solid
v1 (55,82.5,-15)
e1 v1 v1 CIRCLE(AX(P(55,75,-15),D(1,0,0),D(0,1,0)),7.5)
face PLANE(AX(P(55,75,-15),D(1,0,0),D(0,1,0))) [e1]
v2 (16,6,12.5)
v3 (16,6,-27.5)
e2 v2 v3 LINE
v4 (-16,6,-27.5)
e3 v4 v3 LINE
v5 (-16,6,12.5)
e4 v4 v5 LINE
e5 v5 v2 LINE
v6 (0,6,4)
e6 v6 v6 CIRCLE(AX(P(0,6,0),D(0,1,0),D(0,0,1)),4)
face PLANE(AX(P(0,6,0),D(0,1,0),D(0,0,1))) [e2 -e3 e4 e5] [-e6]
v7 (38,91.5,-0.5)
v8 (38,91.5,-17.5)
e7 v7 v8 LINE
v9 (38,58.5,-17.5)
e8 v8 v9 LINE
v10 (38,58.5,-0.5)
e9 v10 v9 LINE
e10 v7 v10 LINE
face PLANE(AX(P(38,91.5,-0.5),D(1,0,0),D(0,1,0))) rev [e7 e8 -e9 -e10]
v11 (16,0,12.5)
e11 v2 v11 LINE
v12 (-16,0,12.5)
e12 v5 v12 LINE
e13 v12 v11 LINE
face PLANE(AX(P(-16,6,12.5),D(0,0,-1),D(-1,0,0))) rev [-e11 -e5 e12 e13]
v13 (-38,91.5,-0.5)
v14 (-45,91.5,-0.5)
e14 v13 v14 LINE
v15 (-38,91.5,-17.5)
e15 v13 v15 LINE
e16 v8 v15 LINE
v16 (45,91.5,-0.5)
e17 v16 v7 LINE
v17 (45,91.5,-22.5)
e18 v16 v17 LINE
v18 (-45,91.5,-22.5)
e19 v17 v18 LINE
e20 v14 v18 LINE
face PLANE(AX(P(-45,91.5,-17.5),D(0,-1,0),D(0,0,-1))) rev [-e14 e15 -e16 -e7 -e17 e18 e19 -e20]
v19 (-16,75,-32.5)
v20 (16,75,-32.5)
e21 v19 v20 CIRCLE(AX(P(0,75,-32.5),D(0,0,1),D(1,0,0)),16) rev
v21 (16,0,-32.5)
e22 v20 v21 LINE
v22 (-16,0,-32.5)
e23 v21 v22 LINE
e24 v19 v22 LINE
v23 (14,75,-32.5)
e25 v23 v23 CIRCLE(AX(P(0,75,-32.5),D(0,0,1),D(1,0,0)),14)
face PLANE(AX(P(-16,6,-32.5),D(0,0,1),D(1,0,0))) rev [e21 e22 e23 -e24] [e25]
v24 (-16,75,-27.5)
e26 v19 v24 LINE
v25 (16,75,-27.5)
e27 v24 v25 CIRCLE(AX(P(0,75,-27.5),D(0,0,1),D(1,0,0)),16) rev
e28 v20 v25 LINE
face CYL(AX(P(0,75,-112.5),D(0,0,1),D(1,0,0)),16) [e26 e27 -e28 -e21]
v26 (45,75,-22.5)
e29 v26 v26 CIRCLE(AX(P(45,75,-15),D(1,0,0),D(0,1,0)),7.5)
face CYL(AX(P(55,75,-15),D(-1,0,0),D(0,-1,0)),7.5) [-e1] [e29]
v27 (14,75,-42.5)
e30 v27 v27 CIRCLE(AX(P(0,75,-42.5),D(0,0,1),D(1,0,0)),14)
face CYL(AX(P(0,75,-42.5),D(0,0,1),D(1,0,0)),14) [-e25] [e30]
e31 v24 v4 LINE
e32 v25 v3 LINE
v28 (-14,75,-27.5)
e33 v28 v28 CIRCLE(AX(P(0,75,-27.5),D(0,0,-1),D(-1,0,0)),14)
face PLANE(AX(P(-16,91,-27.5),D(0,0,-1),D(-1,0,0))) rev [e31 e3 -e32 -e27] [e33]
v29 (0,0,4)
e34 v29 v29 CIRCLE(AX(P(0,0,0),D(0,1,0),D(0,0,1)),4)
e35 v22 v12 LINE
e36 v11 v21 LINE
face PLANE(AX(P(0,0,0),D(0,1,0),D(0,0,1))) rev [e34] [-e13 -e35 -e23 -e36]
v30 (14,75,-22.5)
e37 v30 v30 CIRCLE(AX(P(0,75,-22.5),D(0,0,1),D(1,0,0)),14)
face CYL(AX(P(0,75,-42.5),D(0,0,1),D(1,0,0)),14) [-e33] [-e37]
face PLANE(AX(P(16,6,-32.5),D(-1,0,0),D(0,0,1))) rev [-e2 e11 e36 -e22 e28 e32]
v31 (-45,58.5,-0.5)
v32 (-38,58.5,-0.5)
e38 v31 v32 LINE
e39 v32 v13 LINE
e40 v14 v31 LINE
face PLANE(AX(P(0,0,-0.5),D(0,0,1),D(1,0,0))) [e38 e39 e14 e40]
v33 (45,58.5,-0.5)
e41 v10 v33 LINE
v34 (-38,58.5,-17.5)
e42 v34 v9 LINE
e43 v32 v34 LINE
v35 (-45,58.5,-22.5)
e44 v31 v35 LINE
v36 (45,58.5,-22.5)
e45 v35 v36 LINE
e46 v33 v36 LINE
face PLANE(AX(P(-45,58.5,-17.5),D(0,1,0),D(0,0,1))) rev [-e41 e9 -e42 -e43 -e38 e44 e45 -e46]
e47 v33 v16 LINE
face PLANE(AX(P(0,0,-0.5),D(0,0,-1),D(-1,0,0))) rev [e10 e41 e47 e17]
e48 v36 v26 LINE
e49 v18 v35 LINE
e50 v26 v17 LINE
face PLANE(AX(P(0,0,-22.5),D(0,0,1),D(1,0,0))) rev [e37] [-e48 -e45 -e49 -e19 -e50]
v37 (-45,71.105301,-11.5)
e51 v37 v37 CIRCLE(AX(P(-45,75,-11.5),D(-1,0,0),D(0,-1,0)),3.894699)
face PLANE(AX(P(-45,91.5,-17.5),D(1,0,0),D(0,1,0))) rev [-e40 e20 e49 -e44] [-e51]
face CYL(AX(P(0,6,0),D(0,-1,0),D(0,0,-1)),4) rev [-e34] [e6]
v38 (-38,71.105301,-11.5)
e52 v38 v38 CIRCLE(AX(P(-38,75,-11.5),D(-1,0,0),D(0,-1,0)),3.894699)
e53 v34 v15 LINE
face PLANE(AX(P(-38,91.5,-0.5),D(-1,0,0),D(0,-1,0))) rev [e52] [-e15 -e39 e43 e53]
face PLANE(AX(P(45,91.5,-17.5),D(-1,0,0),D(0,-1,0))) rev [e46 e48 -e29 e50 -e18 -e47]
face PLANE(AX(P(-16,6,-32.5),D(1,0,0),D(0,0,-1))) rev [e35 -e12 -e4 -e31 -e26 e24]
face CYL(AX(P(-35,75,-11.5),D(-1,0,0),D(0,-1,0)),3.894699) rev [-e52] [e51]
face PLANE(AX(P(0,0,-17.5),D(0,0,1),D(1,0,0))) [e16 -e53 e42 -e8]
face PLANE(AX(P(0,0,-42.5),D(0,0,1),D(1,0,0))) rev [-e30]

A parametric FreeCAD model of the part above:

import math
import FreeCAD as App
import Part
import Sketcher
from FreeCAD import Vector
Q = App.Units.Quantity

doc = App.newDocument("Part")
body = doc.addObject("PartDesign::Body", "Body")

sketch1 = body.newObject("Sketcher::SketchObject", "Sketch")
sketch1.AttachmentSupport = (doc.getObject("XZ_Plane"), [""])
sketch1.MapMode = "FlatFace"
sketch1.addGeometry([
    Part.LineSegment(Vector(-16, -32.5, 0), Vector(-16, 12.5, 0)),
    Part.LineSegment(Vector(-16, 12.5, 0), Vector(16, 12.5, 0)),
    Part.LineSegment(Vector(16, 12.5, 0), Vector(16, -32.5, 0)),
    Part.LineSegment(Vector(16, -32.5, 0), Vector(-16, -32.5, 0)),
    Part.Circle(Vector(0, 0, 0), Vector(0, 0, 1), 4),
], False)
sketch1.addConstraint([
    Sketcher.Constraint("Coincident", 0, 2, 1, 1),
    Sketcher.Constraint("Coincident", 1, 2, 2, 1),
    Sketcher.Constraint("Coincident", 2, 2, 3, 1),
    Sketcher.Constraint("Coincident", 3, 2, 0, 1),
    Sketcher.Constraint("Vertical", 0),
    Sketcher.Constraint("Horizontal", 1),
    Sketcher.Constraint("Vertical", 2),
    Sketcher.Constraint("Horizontal", 3),
    Sketcher.Constraint("Coincident", 4, 3, -1, 1),
    Sketcher.Constraint("Diameter", 4, Q("8 mm")),
    Sketcher.Constraint("DistanceX", 1, 1, 1, 2, Q("32 mm")),
    Sketcher.Constraint("DistanceY", 0, 1, 0, 2, Q("45 mm")),
    Sketcher.Constraint("DistanceX", 0, 2, -1, 1, Q("16 mm")),
    Sketcher.Constraint("DistanceY", -1, 1, 0, 2, Q("12.5 mm")),
])
pad1 = body.newObject("PartDesign::Pad", "Pad")
pad1.Profile = sketch1
pad1.Length = 6
pad1.Reversed = True

sketch2 = body.newObject("Sketcher::SketchObject", "Sketch001")
sketch2.AttachmentSupport = (doc.getObject("XZ_Plane"), [""])
sketch2.MapMode = "FlatFace"
sketch2.AttachmentOffset = App.Placement(Vector(0, 0, -6), App.Rotation())
sketch2.addGeometry([
    Part.LineSegment(Vector(-16, -32, 0), Vector(-16, -28, 0)),
    Part.LineSegment(Vector(-16, -28, 0), Vector(16, -28, 0)),
    Part.LineSegment(Vector(16, -28, 0), Vector(16, -32, 0)),
    Part.LineSegment(Vector(16, -32, 0), Vector(-16, -32, 0)),
], False)
sketch2.addConstraint([
    Sketcher.Constraint("Coincident", 0, 2, 1, 1),
    Sketcher.Constraint("Coincident", 1, 2, 2, 1),
    Sketcher.Constraint("Coincident", 2, 2, 3, 1),
    Sketcher.Constraint("Coincident", 3, 2, 0, 1),
    Sketcher.Constraint("Vertical", 0),
    Sketcher.Constraint("Horizontal", 1),
    Sketcher.Constraint("Vertical", 2),
    Sketcher.Constraint("Horizontal", 3),
    Sketcher.Constraint("DistanceX", 1, 1, 1, 2, Q("32 mm")),
    Sketcher.Constraint("DistanceY", 0, 1, 0, 2, Q("5 mm")),
    Sketcher.Constraint("DistanceX", 0, 2, -1, 1, Q("16 mm")),
    Sketcher.Constraint("DistanceY", 0, 2, -1, 1, Q("27.5 mm")),
])
pad2 = body.newObject("PartDesign::Pad", "Pad001")
pad2.Profile = sketch2
pad2.Length = 85
pad2.Reversed = True

sketch3 = body.newObject("Sketcher::SketchObject", "Sketch002")
sketch3.AttachmentSupport = (doc.getObject("XY_Plane"), [""])
sketch3.MapMode = "FlatFace"
sketch3.AttachmentOffset = App.Placement(Vector(0, 0, -27.5), App.Rotation())
sketch3.addGeometry([
    Part.LineSegment(Vector(-16, 91, 0), Vector(-16, 75, 0)),
    Part.ArcOfCircle(Part.Circle(Vector(0, 75, 0), Vector(0, 0, 1), 16), math.radians(90), math.radians(180)),
    Part.LineSegment(Vector(0, 91, 0), Vector(-16, 91, 0)),
    Part.ArcOfCircle(Part.Circle(Vector(0, 75, 0), Vector(0, 0, 1), 16), math.radians(0), math.radians(90)),
    Part.LineSegment(Vector(16, 75, 0), Vector(16, 91, 0)),
    Part.LineSegment(Vector(16, 91, 0), Vector(0, 91, 0)),
], False)
sketch3.addConstraint([
    Sketcher.Constraint("Tangent", 0, 2, 1, 2),
    Sketcher.Constraint("Tangent", 1, 1, 2, 1),
    Sketcher.Constraint("Coincident", 2, 2, 0, 1),
    Sketcher.Constraint("Tangent", 3, 1, 4, 1),
    Sketcher.Constraint("Coincident", 4, 2, 5, 1),
    Sketcher.Constraint("Tangent", 5, 2, 3, 2),
    Sketcher.Constraint("Vertical", 0),
    Sketcher.Constraint("Horizontal", 2),
    Sketcher.Constraint("Vertical", 4),
    Sketcher.Constraint("Horizontal", 5),
    Sketcher.Constraint("Coincident", 3, 3, 1, 3),
    Sketcher.Constraint("Equal", 1, 3),
    Sketcher.Constraint("PointOnObject", 1, 3, -2),
    Sketcher.Constraint("Radius", 1, Q("16 mm")),
    Sketcher.Constraint("DistanceY", -1, 1, 1, 3, Q("75 mm")),
])
pocket1 = body.newObject("PartDesign::Pocket", "Pocket")
pocket1.Profile = sketch3
pocket1.Length = 85

sketch4 = body.newObject("Sketcher::SketchObject", "Sketch003")
sketch4.AttachmentSupport = (doc.getObject("XY_Plane"), [""])
sketch4.MapMode = "FlatFace"
sketch4.AttachmentOffset = App.Placement(Vector(0, 0, -27.5), App.Rotation())
sketch4.addGeometry(Part.Circle(Vector(0, 75, 0), Vector(0, 0, 1), 14), False)
sketch4.addConstraint([
    Sketcher.Constraint("PointOnObject", 0, 3, -2),
    Sketcher.Constraint("Diameter", 0, Q("28 mm")),
    Sketcher.Constraint("DistanceY", -1, 1, 0, 3, Q("75 mm")),
])
pad3 = body.newObject("PartDesign::Pad", "Pad002")
pad3.Profile = sketch4
pad3.Type = "TwoLengths"
pad3.Length = 5
pad3.Length2 = 15

sketch5 = body.newObject("Sketcher::SketchObject", "Sketch004")
sketch5.AttachmentSupport = (doc.getObject("XY_Plane"), [""])
sketch5.MapMode = "FlatFace"
sketch5.AttachmentOffset = App.Placement(Vector(0, 0, -22.5), App.Rotation())
sketch5.addGeometry([
    Part.LineSegment(Vector(-45, 92, 0), Vector(-45, 58, 0)),
    Part.LineSegment(Vector(-45, 58, 0), Vector(45, 58, 0)),
    Part.LineSegment(Vector(45, 58, 0), Vector(45, 92, 0)),
    Part.LineSegment(Vector(45, 92, 0), Vector(-45, 92, 0)),
], False)
sketch5.addConstraint([
    Sketcher.Constraint("Coincident", 0, 2, 1, 1),
    Sketcher.Constraint("Coincident", 1, 2, 2, 1),
    Sketcher.Constraint("Coincident", 2, 2, 3, 1),
    Sketcher.Constraint("Coincident", 3, 2, 0, 1),
    Sketcher.Constraint("Vertical", 0),
    Sketcher.Constraint("Horizontal", 1),
    Sketcher.Constraint("Vertical", 2),
    Sketcher.Constraint("Horizontal", 3),
    Sketcher.Constraint("DistanceX", 1, 1, 1, 2, Q("90 mm")),
    Sketcher.Constraint("DistanceY", 0, 2, 0, 1, Q("33 mm")),
    Sketcher.Constraint("DistanceX", 0, 2, -1, 1, Q("45 mm")),
    Sketcher.Constraint("DistanceY", -1, 1, 0, 2, Q("58.5 mm")),
])
pad4 = body.newObject("PartDesign::Pad", "Pad003")
pad4.Profile = sketch5
pad4.Length = 5

sketch6 = body.newObject("Sketcher::SketchObject", "Sketch005")
sketch6.AttachmentSupport = (doc.getObject("XY_Plane"), [""])
sketch6.MapMode = "FlatFace"
sketch6.AttachmentOffset = App.Placement(Vector(0, 0, -17.5), App.Rotation())
sketch6.addGeometry([
    Part.LineSegment(Vector(-45, 92, 0), Vector(-45, 58, 0)),
    Part.LineSegment(Vector(-45, 58, 0), Vector(-38, 58, 0)),
    Part.LineSegment(Vector(-38, 58, 0), Vector(-38, 92, 0)),
    Part.LineSegment(Vector(-38, 92, 0), Vector(-45, 92, 0)),
    Part.LineSegment(Vector(38, 92, 0), Vector(38, 58, 0)),
    Part.LineSegment(Vector(38, 58, 0), Vector(45, 58, 0)),
    Part.LineSegment(Vector(45, 58, 0), Vector(45, 92, 0)),
    Part.LineSegment(Vector(45, 92, 0), Vector(38, 92, 0)),
], False)
sketch6.addConstraint([
    Sketcher.Constraint("Coincident", 0, 2, 1, 1),
    Sketcher.Constraint("Coincident", 1, 2, 2, 1),
    Sketcher.Constraint("Coincident", 2, 2, 3, 1),
    Sketcher.Constraint("Coincident", 3, 2, 0, 1),
    Sketcher.Constraint("Coincident", 4, 2, 5, 1),
    Sketcher.Constraint("Coincident", 5, 2, 6, 1),
    Sketcher.Constraint("Coincident", 6, 2, 7, 1),
    Sketcher.Constraint("Coincident", 7, 2, 4, 1),
    Sketcher.Constraint("Vertical", 0),
    Sketcher.Constraint("Horizontal", 1),
    Sketcher.Constraint("Vertical", 2),
    Sketcher.Constraint("Horizontal", 3),
    Sketcher.Constraint("Vertical", 4),
    Sketcher.Constraint("Horizontal", 5),
    Sketcher.Constraint("Vertical", 6),
    Sketcher.Constraint("Horizontal", 7),
    Sketcher.Constraint("Symmetric", 1, 2, 4, 2, -2),
    Sketcher.Constraint("Symmetric", 3, 2, 6, 2, -2),
    Sketcher.Constraint("DistanceX", 1, 1, 1, 2, Q("7 mm")),
    Sketcher.Constraint("DistanceY", 0, 2, 0, 1, Q("33 mm")),
    Sketcher.Constraint("DistanceX", 0, 2, -1, 1, Q("45 mm")),
    Sketcher.Constraint("DistanceY", -1, 1, 0, 2, Q("58.5 mm")),
])
pad5 = body.newObject("PartDesign::Pad", "Pad004")
pad5.Profile = sketch6
pad5.Length = 17

sketch7 = body.newObject("Sketcher::SketchObject", "Sketch006")
sketch7.AttachmentSupport = (doc.getObject("YZ_Plane"), [""])
sketch7.MapMode = "FlatFace"
sketch7.AttachmentOffset = App.Placement(Vector(0, 0, 45), App.Rotation())
sketch7.addGeometry(Part.Circle(Vector(75, -15, 0), Vector(0, 0, 1), 8), False)
sketch7.addConstraint([
    Sketcher.Constraint("Diameter", 0, Q("15 mm")),
    Sketcher.Constraint("DistanceX", -1, 1, 0, 3, Q("75 mm")),
    Sketcher.Constraint("DistanceY", 0, 3, -1, 1, Q("15 mm")),
])
pad6 = body.newObject("PartDesign::Pad", "Pad005")
pad6.Profile = sketch7
pad6.Length = 10

sketch8 = body.newObject("Sketcher::SketchObject", "Sketch007")
sketch8.AttachmentSupport = (doc.getObject("YZ_Plane"), [""])
sketch8.MapMode = "FlatFace"
sketch8.AttachmentOffset = App.Placement(Vector(0, 0, -45), App.Rotation())
sketch8.addGeometry(Part.Circle(Vector(75, -11.5, 0), Vector(0, 0, 1), 3.9), False)
sketch8.addConstraint([
    Sketcher.Constraint("DistanceX", -1, 1, 0, 3, Q("75 mm")),
    Sketcher.Constraint("Diameter", 0, Q("7.789399 mm")),
    Sketcher.Constraint("DistanceY", 0, 3, -1, 1, Q("11.5 mm")),
])
pocket2 = body.newObject("PartDesign::Pocket", "Pocket001")
pocket2.Profile = sketch8
pocket2.Length = 10
pocket2.Reversed = True

doc.recompute()
